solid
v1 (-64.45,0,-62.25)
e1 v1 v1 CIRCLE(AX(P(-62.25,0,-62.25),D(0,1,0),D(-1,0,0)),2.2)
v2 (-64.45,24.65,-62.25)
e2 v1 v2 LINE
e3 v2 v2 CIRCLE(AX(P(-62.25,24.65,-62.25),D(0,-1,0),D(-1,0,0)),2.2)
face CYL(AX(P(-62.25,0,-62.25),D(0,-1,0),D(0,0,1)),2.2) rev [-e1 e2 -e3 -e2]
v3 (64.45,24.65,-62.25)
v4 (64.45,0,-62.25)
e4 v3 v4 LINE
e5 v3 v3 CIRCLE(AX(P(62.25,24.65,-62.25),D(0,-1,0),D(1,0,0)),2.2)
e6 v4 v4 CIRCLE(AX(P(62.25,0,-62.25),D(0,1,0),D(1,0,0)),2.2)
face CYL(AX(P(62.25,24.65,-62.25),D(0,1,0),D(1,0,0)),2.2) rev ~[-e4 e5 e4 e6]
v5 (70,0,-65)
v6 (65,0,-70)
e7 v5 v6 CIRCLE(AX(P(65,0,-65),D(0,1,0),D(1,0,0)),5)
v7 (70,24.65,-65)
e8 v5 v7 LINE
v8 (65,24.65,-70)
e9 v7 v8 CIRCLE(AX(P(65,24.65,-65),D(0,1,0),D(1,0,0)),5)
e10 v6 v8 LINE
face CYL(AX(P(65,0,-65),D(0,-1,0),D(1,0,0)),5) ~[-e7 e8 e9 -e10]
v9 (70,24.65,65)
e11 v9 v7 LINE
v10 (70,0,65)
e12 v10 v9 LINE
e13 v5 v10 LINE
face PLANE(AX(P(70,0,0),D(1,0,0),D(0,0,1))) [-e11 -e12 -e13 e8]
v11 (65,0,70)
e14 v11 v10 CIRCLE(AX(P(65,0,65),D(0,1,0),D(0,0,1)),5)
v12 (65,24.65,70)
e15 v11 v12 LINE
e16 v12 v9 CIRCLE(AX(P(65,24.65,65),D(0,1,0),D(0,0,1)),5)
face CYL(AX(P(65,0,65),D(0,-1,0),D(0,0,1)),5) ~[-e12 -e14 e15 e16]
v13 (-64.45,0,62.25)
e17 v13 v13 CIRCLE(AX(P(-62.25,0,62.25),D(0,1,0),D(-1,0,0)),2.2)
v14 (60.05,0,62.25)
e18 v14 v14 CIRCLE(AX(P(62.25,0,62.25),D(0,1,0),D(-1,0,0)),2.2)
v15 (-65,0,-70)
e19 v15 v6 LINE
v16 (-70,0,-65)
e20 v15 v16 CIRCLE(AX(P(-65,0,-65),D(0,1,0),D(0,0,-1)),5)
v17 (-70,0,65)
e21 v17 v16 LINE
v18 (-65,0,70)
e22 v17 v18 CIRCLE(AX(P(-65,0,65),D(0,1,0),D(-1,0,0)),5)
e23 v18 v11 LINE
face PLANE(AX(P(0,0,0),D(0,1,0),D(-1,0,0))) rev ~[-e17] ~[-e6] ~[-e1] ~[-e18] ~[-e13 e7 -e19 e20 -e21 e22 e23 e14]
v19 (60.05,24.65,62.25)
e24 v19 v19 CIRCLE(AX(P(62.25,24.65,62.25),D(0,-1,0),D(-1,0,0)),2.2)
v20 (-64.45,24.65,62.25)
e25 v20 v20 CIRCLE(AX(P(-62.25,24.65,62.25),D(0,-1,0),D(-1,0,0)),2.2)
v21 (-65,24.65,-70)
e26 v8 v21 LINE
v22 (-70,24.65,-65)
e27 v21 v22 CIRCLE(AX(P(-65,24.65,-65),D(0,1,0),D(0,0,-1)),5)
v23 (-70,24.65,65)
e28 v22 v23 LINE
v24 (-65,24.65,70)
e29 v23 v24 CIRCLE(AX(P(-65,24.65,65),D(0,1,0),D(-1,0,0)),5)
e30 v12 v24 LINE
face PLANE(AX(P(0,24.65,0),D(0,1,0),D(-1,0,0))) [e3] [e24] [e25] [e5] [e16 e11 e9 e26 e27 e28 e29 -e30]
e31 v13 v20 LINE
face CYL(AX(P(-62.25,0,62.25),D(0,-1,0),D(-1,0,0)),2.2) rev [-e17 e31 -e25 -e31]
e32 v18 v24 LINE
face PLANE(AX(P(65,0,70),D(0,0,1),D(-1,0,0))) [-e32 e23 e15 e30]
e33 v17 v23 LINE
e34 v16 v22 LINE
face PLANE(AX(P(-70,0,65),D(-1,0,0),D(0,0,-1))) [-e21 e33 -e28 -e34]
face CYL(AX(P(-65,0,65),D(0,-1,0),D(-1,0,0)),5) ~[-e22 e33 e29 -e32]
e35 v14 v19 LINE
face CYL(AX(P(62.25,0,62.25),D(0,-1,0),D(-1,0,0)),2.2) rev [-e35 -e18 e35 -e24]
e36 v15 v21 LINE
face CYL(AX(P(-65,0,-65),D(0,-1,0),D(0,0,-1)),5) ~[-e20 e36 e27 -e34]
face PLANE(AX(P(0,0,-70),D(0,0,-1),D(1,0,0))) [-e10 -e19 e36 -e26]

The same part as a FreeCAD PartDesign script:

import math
import FreeCAD as App
import Part
import Sketcher
Q = App.Units.Quantity

doc = App.newDocument("Part")
body = doc.addObject("PartDesign::Body", "Body")

sketch1 = body.newObject("Sketcher::SketchObject", "Sketch")
sketch1.AttachmentSupport = (doc.getObject("XZ_Plane"), [""])
sketch1.MapMode = "FlatFace"
sketch1.addGeometry([
    Part.ArcOfCircle(Part.Circle(App.Vector(65, 65, 0), App.Vector(0, 0, 1), 5), math.radians(0), math.radians(90)),
    Part.LineSegment(App.Vector(70, 65, 0), App.Vector(70, -65, 0)),
    Part.ArcOfCircle(Part.Circle(App.Vector(65, -65, 0), App.Vector(0, 0, 1), 5), math.radians(-90), math.radians(0)),
    Part.LineSegment(App.Vector(65, -70, 0), App.Vector(-65, -70, 0)),
    Part.ArcOfCircle(Part.Circle(App.Vector(-65, -65, 0), App.Vector(0, 0, 1), 5), math.radians(180), math.radians(270)),
    Part.LineSegment(App.Vector(-70, -65, 0), App.Vector(-70, 65, 0)),
    Part.ArcOfCircle(Part.Circle(App.Vector(-65, 65, 0), App.Vector(0, 0, 1), 5), math.radians(90), math.radians(180)),
    Part.LineSegment(App.Vector(-65, 70, 0), App.Vector(65, 70, 0)),
    Part.Circle(App.Vector(62.2, 62.2, 0), App.Vector(0, 0, 1), 2.2),
    Part.Circle(App.Vector(-62.2, 62.2, 0), App.Vector(0, 0, 1), 2.2),
    Part.Circle(App.Vector(-62.2, -62.2, 0), App.Vector(0, 0, 1), 2.2),
], False)
sketch1.addConstraint([
    Sketcher.Constraint("Tangent", 0, 1, 1, 1),
    Sketcher.Constraint("Tangent", 1, 2, 2, 2),
    Sketcher.Constraint("Tangent", 2, 1, 3, 1),
    Sketcher.Constraint("Tangent", 3, 2, 4, 2),
    Sketcher.Constraint("Tangent", 4, 1, 5, 1),
    Sketcher.Constraint("Tangent", 5, 2, 6, 2),
    Sketcher.Constraint("Tangent", 6, 1, 7, 1),
    Sketcher.Constraint("Tangent", 7, 2, 0, 2),
    Sketcher.Constraint("Vertical", 1),
    Sketcher.Constraint("Horizontal", 3),
    Sketcher.Constraint("Vertical", 5),
    Sketcher.Constraint("Horizontal", 7),
    Sketcher.Constraint("Equal", 0, 2),
    Sketcher.Constraint("Equal", 2, 4),
    Sketcher.Constraint("Equal", 4, 6),
    Sketcher.Constraint("Equal", 8, 9),
    Sketcher.Constraint("Equal", 9, 10),
    Sketcher.Constraint("Symmetric", 0, 3, 4, 3, -1, 1),
    Sketcher.Constraint("Symmetric", 8, 3, 10, 3, -1, 1),
    Sketcher.Constraint("Symmetric", 8, 3, 9, 3, -2),
    Sketcher.Constraint("Equal", 7, 1),
    Sketcher.Constraint("Radius", 0, Q("5 mm")),
    Sketcher.Constraint("Diameter", 8, Q("4.4 mm")),
    Sketcher.Constraint("DistanceX", 3, 2, 3, 1, Q("130 mm")),
    Sketcher.Constraint("DistanceX", 8, 3, 0, 1, Q("7.75 mm")),
    Sketcher.Constraint("DistanceY", 2, 1, 10, 3, Q("7.75 mm")),
])
pad1 = body.newObject("PartDesign::Pad", "Pad")
pad1.Profile = sketch1
pad1.Length = 24.65
pad1.Reversed = True

sketch2 = body.newObject("Sketcher::SketchObject", "Sketch001")
sketch2.AttachmentSupport = (doc.getObject("XZ_Plane"), [""])
sketch2.MapMode = "FlatFace"
sketch2.AttachmentOffset = App.Placement(App.Vector(0, 0, -24.65), App.Rotation())
sketch2.addGeometry(Part.Circle(App.Vector(62.2, -62.2, 0), App.Vector(0, 0, 1), 2.2), False)
sketch2.addConstraint([
    Sketcher.Constraint("Diameter", 0, Q("4.4 mm")),
    Sketcher.Constraint("DistanceX", -1, 1, 0, 3, Q("62.25 mm")),
    Sketcher.Constraint("DistanceY", 0, 3, -1, 1, Q("62.25 mm")),
])
pocket1 = body.newObject("PartDesign::Pocket", "Pocket")
pocket1.Profile = sketch2
pocket1.Type = "UpToFirst"
pocket1.Reversed = True

doc.recompute()
